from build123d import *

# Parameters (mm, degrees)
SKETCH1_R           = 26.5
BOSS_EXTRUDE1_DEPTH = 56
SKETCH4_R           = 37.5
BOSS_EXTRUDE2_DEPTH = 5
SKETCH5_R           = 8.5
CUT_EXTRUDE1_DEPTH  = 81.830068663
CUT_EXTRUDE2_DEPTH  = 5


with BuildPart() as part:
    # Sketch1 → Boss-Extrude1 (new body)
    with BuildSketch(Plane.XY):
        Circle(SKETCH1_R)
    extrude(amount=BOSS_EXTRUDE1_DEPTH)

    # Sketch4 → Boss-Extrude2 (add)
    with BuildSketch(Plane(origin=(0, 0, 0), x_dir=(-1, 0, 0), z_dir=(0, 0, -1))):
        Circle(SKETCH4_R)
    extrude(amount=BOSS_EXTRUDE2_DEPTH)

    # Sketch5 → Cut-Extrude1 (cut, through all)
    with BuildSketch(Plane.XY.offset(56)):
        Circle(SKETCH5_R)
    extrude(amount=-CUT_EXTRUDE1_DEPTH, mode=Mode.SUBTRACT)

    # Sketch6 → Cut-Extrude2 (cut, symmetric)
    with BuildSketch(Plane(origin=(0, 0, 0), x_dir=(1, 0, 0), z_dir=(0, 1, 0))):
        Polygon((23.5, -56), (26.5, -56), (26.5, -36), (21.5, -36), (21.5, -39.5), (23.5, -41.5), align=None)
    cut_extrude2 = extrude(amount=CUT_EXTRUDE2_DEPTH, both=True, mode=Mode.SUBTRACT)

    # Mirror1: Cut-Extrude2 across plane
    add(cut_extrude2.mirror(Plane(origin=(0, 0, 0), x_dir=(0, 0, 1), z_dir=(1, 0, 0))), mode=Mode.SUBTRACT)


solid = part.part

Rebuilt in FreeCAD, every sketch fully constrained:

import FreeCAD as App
import Part
import Sketcher

V = App.Vector
Q = App.Units.Quantity

doc = App.newDocument("Part")
body = doc.addObject("PartDesign::Body", "Body")

# Sketch on XY plane
sketch1 = doc.addObject("Sketcher::SketchObject", "Sketch")
body.addObject(sketch1)
sketch1.AttachmentSupport = (doc.XY_Plane, [""])
sketch1.MapMode = "FlatFace"
sketch1.addGeometry(Part.Circle(V(0, 0, 0), V(0, 0, 1), 26), False)
sketch1.addConstraint(Sketcher.Constraint("Coincident", 0, 3, -1, 1))
sketch1.addConstraint(Sketcher.Constraint("Diameter", 0, Q("53 mm")))
pad1 = doc.addObject("PartDesign::Pad", "Pad")
body.addObject(pad1)
pad1.Profile = sketch1
pad1.Length = 56

# Sketch on XY plane
sketch2 = doc.addObject("Sketcher::SketchObject", "Sketch001")
body.addObject(sketch2)
sketch2.AttachmentSupport = (doc.XY_Plane, [""])
sketch2.MapMode = "FlatFace"
sketch2.addGeometry(Part.Circle(V(0, 0, 0), V(0, 0, 1), 38), False)
sketch2.addConstraint(Sketcher.Constraint("Coincident", 0, 3, -1, 1))
sketch2.addConstraint(Sketcher.Constraint("Diameter", 0, Q("75 mm")))
pad2 = doc.addObject("PartDesign::Pad", "Pad001")
body.addObject(pad2)
pad2.Profile = sketch2
pad2.Length = 5
pad2.Reversed = True

# Sketch on XY plane
sketch3 = doc.addObject("Sketcher::SketchObject", "Sketch002")
body.addObject(sketch3)
sketch3.AttachmentSupport = (doc.XY_Plane, [""])
sketch3.MapMode = "FlatFace"
sketch3.AttachmentOffset = App.Placement(V(0, 0, 56), App.Rotation())
sketch3.addGeometry(Part.Circle(V(0, 0, 0), V(0, 0, 1), 8), False)
sketch3.addConstraint(Sketcher.Constraint("Coincident", 0, 3, -1, 1))
sketch3.addConstraint(Sketcher.Constraint("Diameter", 0, Q("17 mm")))
pocket1 = doc.addObject("PartDesign::Pocket", "Pocket")
body.addObject(pocket1)
pocket1.Profile = sketch3
pocket1.Type = "ThroughAll"

# Sketch on XZ plane
sketch4 = doc.addObject("Sketcher::SketchObject", "Sketch003")
body.addObject(sketch4)
sketch4.AttachmentSupport = (doc.XZ_Plane, [""])
sketch4.MapMode = "FlatFace"
sketch4.addGeometry(Part.LineSegment(V(23.5, 56, 0), V(26.5, 56, 0)), False)
sketch4.addGeometry(Part.LineSegment(V(26.5, 56, 0), V(26.5, 36, 0)), False)
sketch4.addGeometry(Part.LineSegment(V(26.5, 36, 0), V(21.5, 36, 0)), False)
sketch4.addGeometry(Part.LineSegment(V(21.5, 36, 0), V(21.5, 39.5, 0)), False)
sketch4.addGeometry(Part.LineSegment(V(21.5, 39.5, 0), V(23.5, 41.5, 0)), False)
sketch4.addGeometry(Part.LineSegment(V(23.5, 41.5, 0), V(23.5, 56, 0)), False)
sketch4.addConstraint(Sketcher.Constraint("Coincident", 0, 2, 1, 1))
sketch4.addConstraint(Sketcher.Constraint("Coincident", 1, 2, 2, 1))
sketch4.addConstraint(Sketcher.Constraint("Coincident", 2, 2, 3, 1))
sketch4.addConstraint(Sketcher.Constraint("Coincident", 3, 2, 4, 1))
sketch4.addConstraint(Sketcher.Constraint("Coincident", 4, 2, 5, 1))
sketch4.addConstraint(Sketcher.Constraint("Coincident", 5, 2, 0, 1))
sketch4.addConstraint(Sketcher.Constraint("Horizontal", 0))
sketch4.addConstraint(Sketcher.Constraint("Vertical", 1))
sketch4.addConstraint(Sketcher.Constraint("Horizontal", 2))
sketch4.addConstraint(Sketcher.Constraint("Vertical", 3))
sketch4.addConstraint(Sketcher.Constraint("Vertical", 5))
sketch4.addConstraint(Sketcher.Constraint("DistanceX", 0, 1, 0, 2, Q("3 mm")))
sketch4.addConstraint(Sketcher.Constraint("DistanceX", 2, 2, 2, 1, Q("5 mm")))
sketch4.addConstraint(Sketcher.Constraint("DistanceY", 1, 2, 1, 1, Q("20 mm")))
sketch4.addConstraint(Sketcher.Constraint("Angle", 4, Q("45 deg")))
sketch4.addConstraint(Sketcher.Constraint("DistanceY", 3, 1, 3, 2, Q("3.5 mm")))
sketch4.addConstraint(Sketcher.Constraint("DistanceY", -1, 1, 0, 2, Q("56 mm")))
sketch4.addConstraint(Sketcher.Constraint("DistanceX", -1, 1, 0, 2, Q("26.5 mm")))
pocket2 = doc.addObject("PartDesign::Pocket", "Pocket001")
body.addObject(pocket2)
pocket2.Profile = sketch4
pocket2.Length = 10
pocket2.Midplane = True
doc.recompute()

mirrored = doc.addObject("PartDesign::Mirrored", "Mirrored")
body.addObject(mirrored)
mirrored.Originals = [pocket2]
mirrored.MirrorPlane = (doc.YZ_Plane, [""])
body.Tip = mirrored

doc.recompute()
